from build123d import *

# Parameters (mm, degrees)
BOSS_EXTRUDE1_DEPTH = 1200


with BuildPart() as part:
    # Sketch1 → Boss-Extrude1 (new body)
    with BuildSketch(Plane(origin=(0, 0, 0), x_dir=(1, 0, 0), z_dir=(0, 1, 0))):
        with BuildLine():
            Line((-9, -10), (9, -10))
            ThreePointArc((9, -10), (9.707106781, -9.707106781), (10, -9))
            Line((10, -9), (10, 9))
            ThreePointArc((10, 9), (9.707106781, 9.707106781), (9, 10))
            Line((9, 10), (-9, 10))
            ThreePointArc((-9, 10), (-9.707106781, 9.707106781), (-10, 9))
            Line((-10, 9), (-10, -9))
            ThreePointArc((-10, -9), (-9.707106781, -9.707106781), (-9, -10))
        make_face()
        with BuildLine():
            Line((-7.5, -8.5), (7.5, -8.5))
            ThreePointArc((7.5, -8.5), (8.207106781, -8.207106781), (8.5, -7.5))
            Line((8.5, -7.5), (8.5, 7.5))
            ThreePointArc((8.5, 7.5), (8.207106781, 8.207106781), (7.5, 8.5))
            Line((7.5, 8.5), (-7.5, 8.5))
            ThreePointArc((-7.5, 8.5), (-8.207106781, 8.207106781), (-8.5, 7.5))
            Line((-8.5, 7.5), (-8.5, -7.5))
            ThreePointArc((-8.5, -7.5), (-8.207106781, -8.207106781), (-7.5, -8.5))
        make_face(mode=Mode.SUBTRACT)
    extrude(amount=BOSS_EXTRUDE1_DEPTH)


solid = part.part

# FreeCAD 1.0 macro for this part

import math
import FreeCAD as App
import Part
import Sketcher
Q = App.Units.Quantity

doc = App.newDocument("Part")
params = doc.addObject("Spreadsheet::Sheet", "Params")
for row, (alias, value) in enumerate([
    ("sketch1_radius", "1 mm"),
    ("sketch1_width", "18 mm"),
    ("sketch1_width2", "15 mm"),
    ("pad1_length", "1200 mm"),
], start=1):
    params.set(f"A{row}", alias)
    params.set(f"B{row}", "=" + value)
    params.setAlias(f"B{row}", alias)

body = doc.addObject("PartDesign::Body", "Body")

sketch1 = body.newObject("Sketcher::SketchObject", "Sketch")
sketch1.AttachmentSupport = (doc.getObject("XZ_Plane"), [""])
sketch1.MapMode = "FlatFace"
sketch1.addGeometry([
    Part.LineSegment(App.Vector(-9, 10, 0), App.Vector(9, 10, 0)),
    Part.ArcOfCircle(Part.Circle(App.Vector(9, 9, 0), App.Vector(0, 0, 1), 1), math.radians(0), math.radians(90)),
    Part.LineSegment(App.Vector(10, 9, 0), App.Vector(10, -9, 0)),
    Part.ArcOfCircle(Part.Circle(App.Vector(9, -9, 0), App.Vector(0, 0, 1), 1), math.radians(-90), math.radians(0)),
    Part.LineSegment(App.Vector(9, -10, 0), App.Vector(-9, -10, 0)),
    Part.ArcOfCircle(Part.Circle(App.Vector(-9, -9, 0), App.Vector(0, 0, 1), 1), math.radians(-180), math.radians(-90)),
    Part.LineSegment(App.Vector(-10, -9, 0), App.Vector(-10, 9, 0)),
    Part.ArcOfCircle(Part.Circle(App.Vector(-9, 9, 0), App.Vector(0, 0, 1), 1), math.radians(90), math.radians(180)),
    Part.LineSegment(App.Vector(7.5, 8.5, 0), App.Vector(-7.5, 8.5, 0)),
    Part.ArcOfCircle(Part.Circle(App.Vector(-7.5, 7.5, 0), App.Vector(0, 0, 1), 1), math.radians(90), math.radians(180)),
    Part.LineSegment(App.Vector(-8.5, 7.5, 0), App.Vector(-8.5, -7.5, 0)),
    Part.ArcOfCircle(Part.Circle(App.Vector(-7.5, -7.5, 0), App.Vector(0, 0, 1), 1), math.radians(-180), math.radians(-90)),
    Part.LineSegment(App.Vector(-7.5, -8.5, 0), App.Vector(7.5, -8.5, 0)),
    Part.ArcOfCircle(Part.Circle(App.Vector(7.5, -7.5, 0), App.Vector(0, 0, 1), 1), math.radians(-90), math.radians(0)),
    Part.LineSegment(App.Vector(8.5, -7.5, 0), App.Vector(8.5, 7.5, 0)),
    Part.ArcOfCircle(Part.Circle(App.Vector(7.5, 7.5, 0), App.Vector(0, 0, 1), 1), math.radians(0), math.radians(90)),
], False)
sketch1.addConstraint([
    Sketcher.Constraint("Tangent", 0, 2, 1, 2),
    Sketcher.Constraint("Tangent", 1, 1, 2, 1),
    Sketcher.Constraint("Tangent", 2, 2, 3, 2),
    Sketcher.Constraint("Tangent", 3, 1, 4, 1),
    Sketcher.Constraint("Tangent", 4, 2, 5, 2),
    Sketcher.Constraint("Tangent", 5, 1, 6, 1),
    Sketcher.Constraint("Tangent", 6, 2, 7, 2),
    Sketcher.Constraint("Tangent", 7, 1, 0, 1),
    Sketcher.Constraint("Tangent", 8, 2, 9, 1),
    Sketcher.Constraint("Tangent", 9, 2, 10, 1),
    Sketcher.Constraint("Tangent", 10, 2, 11, 1),
    Sketcher.Constraint("Tangent", 11, 2, 12, 1),
    Sketcher.Constraint("Tangent", 12, 2, 13, 1),
    Sketcher.Constraint("Tangent", 13, 2, 14, 1),
    Sketcher.Constraint("Tangent", 14, 2, 15, 1),
    Sketcher.Constraint("Tangent", 15, 2, 8, 1),
    Sketcher.Constraint("Horizontal", 0),
    Sketcher.Constraint("Vertical", 2),
    Sketcher.Constraint("Horizontal", 4),
    Sketcher.Constraint("Vertical", 6),
    Sketcher.Constraint("Horizontal", 8),
    Sketcher.Constraint("Vertical", 10),
    Sketcher.Constraint("Horizontal", 12),
    Sketcher.Constraint("Vertical", 14),
    Sketcher.Constraint("Equal", 1, 3),
    Sketcher.Constraint("Equal", 3, 5),
    Sketcher.Constraint("Equal", 5, 7),
    Sketcher.Constraint("Equal", 7, 9),
    Sketcher.Constraint("Equal", 9, 11),
    Sketcher.Constraint("Equal", 11, 13),
    Sketcher.Constraint("Equal", 13, 15),
    Sketcher.Constraint("Symmetric", 1, 3, 5, 3, -1, 1),
    Sketcher.Constraint("Symmetric", 9, 3, 13, 3, -1, 1),
    Sketcher.Constraint("Equal", 4, 2),
    Sketcher.Constraint("Equal", 12, 10),
    Sketcher.Constraint("Radius", 1, Q("1 mm")),
    Sketcher.Constraint("DistanceX", 0, 1, 0, 2, Q("18 mm")),
    Sketcher.Constraint("DistanceX", 8, 2, 8, 1, Q("15 mm")),
])
sketch1.setExpression("Constraints[35]", "Params.sketch1_radius")
sketch1.setExpression("Constraints[36]", "Params.sketch1_width")
sketch1.setExpression("Constraints[37]", "Params.sketch1_width2")
pad1 = body.newObject("PartDesign::Pad", "Pad")
pad1.Profile = sketch1
pad1.setExpression("Length", "Params.pad1_length")
pad1.Reversed = True

doc.recompute()
